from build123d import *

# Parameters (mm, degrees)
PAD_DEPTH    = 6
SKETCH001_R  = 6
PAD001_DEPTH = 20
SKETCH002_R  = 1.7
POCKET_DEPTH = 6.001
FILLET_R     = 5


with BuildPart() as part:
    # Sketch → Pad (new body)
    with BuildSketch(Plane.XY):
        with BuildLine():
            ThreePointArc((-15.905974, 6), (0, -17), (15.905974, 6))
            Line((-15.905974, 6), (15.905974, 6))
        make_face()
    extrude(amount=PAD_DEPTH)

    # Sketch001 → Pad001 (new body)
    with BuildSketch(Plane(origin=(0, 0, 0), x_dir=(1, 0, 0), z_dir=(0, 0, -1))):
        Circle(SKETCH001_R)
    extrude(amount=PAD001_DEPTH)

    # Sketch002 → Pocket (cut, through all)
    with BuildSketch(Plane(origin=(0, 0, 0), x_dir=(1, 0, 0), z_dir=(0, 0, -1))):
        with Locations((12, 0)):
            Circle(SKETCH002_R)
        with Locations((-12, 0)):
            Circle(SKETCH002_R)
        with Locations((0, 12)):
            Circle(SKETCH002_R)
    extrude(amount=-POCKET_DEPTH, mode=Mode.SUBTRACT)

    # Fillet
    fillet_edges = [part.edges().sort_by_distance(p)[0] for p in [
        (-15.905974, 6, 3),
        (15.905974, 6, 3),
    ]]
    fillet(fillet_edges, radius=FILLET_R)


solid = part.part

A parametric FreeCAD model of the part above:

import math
import FreeCAD as App
import Part
import Sketcher
from FreeCAD import Vector


def edges_at(feature, points):
    """Names of the edges that pass closest to the given points."""
    edges = feature.Shape.Edges
    near = lambda p: min(range(len(edges)), key=lambda i: edges[i].distToShape(Part.Vertex(*p))[0])
    return sorted({f"Edge{near(p) + 1}" for p in points})

doc = App.newDocument("Part")
body = doc.addObject("PartDesign::Body", "Body")

# Sketch on XY plane
sketch1 = body.newObject("Sketcher::SketchObject", "Sketch")
sketch1.AttachmentSupport = (doc.getObject("XY_Plane"), [""])
sketch1.MapMode = "FlatFace"
sketch1.addGeometry([
    Part.ArcOfCircle(Part.Circle(Vector(0, 0, 0), Vector(0, 0, 1), 17), math.radians(159), math.radians(381)),
    Part.LineSegment(Vector(16, 6, 0), Vector(-16, 6, 0)),
], False)
sketch1.addConstraint([
    Sketcher.Constraint("Coincident", 0, 1, 1, 2),
    Sketcher.Constraint("Coincident", 1, 1, 0, 2),
    Sketcher.Constraint("Horizontal", 1),
    Sketcher.Constraint("Coincident", 0, 3, -1, 1),
    Sketcher.Constraint("Radius", 0, 17.0),
    Sketcher.Constraint("DistanceY", -1, 1, 0, 1, 6.0),
])
pad1 = body.newObject("PartDesign::Pad", "Pad")
pad1.Profile = sketch1
pad1.Length = 6

# Sketch on XY plane
sketch2 = body.newObject("Sketcher::SketchObject", "Sketch001")
sketch2.AttachmentSupport = (doc.getObject("XY_Plane"), [""])
sketch2.MapMode = "FlatFace"
sketch2.addGeometry(Part.Circle(Vector(0, 0, 0), Vector(0, 0, 1), 6), False)
sketch2.addConstraint([
    Sketcher.Constraint("Coincident", 0, 3, -1, 1),
    Sketcher.Constraint("Diameter", 0, 12.0),
])
pad2 = body.newObject("PartDesign::Pad", "Pad001")
pad2.Profile = sketch2
pad2.Length = 20
pad2.Reversed = True

# Sketch on XY plane
sketch3 = body.newObject("Sketcher::SketchObject", "Sketch002")
sketch3.AttachmentSupport = (doc.getObject("XY_Plane"), [""])
sketch3.MapMode = "FlatFace"
sketch3.addGeometry([
    Part.Circle(Vector(12, 0, 0), Vector(0, 0, 1), 1.7),
    Part.Circle(Vector(-12, 0, 0), Vector(0, 0, 1), 1.7),
    Part.Circle(Vector(0, -12, 0), Vector(0, 0, 1), 1.7),
], False)
sketch3.addConstraint([
    Sketcher.Constraint("Equal", 0, 1),
    Sketcher.Constraint("Equal", 1, 2),
    Sketcher.Constraint("Symmetric", 0, 3, 1, 3, -1, 1),
    Sketcher.Constraint("PointOnObject", 0, 3, -1),
    Sketcher.Constraint("PointOnObject", 2, 3, -2),
    Sketcher.Constraint("Diameter", 0, 3.4),
    Sketcher.Constraint("DistanceX", -1, 1, 0, 3, 12.0),
    Sketcher.Constraint("DistanceY", 2, 3, -1, 1, 12.0),
])
pocket1 = body.newObject("PartDesign::Pocket", "Pocket")
pocket1.Profile = sketch3
pocket1.Type = "ThroughAll"
pocket1.Reversed = True
doc.recompute()

fillet = body.newObject("PartDesign::Fillet", "Fillet")
fillet.Base = (pocket1, edges_at(pocket1, [(-15.906, 6, 3), (15.906, 6, 3)]))
fillet.Radius = 5

doc.recompute()
